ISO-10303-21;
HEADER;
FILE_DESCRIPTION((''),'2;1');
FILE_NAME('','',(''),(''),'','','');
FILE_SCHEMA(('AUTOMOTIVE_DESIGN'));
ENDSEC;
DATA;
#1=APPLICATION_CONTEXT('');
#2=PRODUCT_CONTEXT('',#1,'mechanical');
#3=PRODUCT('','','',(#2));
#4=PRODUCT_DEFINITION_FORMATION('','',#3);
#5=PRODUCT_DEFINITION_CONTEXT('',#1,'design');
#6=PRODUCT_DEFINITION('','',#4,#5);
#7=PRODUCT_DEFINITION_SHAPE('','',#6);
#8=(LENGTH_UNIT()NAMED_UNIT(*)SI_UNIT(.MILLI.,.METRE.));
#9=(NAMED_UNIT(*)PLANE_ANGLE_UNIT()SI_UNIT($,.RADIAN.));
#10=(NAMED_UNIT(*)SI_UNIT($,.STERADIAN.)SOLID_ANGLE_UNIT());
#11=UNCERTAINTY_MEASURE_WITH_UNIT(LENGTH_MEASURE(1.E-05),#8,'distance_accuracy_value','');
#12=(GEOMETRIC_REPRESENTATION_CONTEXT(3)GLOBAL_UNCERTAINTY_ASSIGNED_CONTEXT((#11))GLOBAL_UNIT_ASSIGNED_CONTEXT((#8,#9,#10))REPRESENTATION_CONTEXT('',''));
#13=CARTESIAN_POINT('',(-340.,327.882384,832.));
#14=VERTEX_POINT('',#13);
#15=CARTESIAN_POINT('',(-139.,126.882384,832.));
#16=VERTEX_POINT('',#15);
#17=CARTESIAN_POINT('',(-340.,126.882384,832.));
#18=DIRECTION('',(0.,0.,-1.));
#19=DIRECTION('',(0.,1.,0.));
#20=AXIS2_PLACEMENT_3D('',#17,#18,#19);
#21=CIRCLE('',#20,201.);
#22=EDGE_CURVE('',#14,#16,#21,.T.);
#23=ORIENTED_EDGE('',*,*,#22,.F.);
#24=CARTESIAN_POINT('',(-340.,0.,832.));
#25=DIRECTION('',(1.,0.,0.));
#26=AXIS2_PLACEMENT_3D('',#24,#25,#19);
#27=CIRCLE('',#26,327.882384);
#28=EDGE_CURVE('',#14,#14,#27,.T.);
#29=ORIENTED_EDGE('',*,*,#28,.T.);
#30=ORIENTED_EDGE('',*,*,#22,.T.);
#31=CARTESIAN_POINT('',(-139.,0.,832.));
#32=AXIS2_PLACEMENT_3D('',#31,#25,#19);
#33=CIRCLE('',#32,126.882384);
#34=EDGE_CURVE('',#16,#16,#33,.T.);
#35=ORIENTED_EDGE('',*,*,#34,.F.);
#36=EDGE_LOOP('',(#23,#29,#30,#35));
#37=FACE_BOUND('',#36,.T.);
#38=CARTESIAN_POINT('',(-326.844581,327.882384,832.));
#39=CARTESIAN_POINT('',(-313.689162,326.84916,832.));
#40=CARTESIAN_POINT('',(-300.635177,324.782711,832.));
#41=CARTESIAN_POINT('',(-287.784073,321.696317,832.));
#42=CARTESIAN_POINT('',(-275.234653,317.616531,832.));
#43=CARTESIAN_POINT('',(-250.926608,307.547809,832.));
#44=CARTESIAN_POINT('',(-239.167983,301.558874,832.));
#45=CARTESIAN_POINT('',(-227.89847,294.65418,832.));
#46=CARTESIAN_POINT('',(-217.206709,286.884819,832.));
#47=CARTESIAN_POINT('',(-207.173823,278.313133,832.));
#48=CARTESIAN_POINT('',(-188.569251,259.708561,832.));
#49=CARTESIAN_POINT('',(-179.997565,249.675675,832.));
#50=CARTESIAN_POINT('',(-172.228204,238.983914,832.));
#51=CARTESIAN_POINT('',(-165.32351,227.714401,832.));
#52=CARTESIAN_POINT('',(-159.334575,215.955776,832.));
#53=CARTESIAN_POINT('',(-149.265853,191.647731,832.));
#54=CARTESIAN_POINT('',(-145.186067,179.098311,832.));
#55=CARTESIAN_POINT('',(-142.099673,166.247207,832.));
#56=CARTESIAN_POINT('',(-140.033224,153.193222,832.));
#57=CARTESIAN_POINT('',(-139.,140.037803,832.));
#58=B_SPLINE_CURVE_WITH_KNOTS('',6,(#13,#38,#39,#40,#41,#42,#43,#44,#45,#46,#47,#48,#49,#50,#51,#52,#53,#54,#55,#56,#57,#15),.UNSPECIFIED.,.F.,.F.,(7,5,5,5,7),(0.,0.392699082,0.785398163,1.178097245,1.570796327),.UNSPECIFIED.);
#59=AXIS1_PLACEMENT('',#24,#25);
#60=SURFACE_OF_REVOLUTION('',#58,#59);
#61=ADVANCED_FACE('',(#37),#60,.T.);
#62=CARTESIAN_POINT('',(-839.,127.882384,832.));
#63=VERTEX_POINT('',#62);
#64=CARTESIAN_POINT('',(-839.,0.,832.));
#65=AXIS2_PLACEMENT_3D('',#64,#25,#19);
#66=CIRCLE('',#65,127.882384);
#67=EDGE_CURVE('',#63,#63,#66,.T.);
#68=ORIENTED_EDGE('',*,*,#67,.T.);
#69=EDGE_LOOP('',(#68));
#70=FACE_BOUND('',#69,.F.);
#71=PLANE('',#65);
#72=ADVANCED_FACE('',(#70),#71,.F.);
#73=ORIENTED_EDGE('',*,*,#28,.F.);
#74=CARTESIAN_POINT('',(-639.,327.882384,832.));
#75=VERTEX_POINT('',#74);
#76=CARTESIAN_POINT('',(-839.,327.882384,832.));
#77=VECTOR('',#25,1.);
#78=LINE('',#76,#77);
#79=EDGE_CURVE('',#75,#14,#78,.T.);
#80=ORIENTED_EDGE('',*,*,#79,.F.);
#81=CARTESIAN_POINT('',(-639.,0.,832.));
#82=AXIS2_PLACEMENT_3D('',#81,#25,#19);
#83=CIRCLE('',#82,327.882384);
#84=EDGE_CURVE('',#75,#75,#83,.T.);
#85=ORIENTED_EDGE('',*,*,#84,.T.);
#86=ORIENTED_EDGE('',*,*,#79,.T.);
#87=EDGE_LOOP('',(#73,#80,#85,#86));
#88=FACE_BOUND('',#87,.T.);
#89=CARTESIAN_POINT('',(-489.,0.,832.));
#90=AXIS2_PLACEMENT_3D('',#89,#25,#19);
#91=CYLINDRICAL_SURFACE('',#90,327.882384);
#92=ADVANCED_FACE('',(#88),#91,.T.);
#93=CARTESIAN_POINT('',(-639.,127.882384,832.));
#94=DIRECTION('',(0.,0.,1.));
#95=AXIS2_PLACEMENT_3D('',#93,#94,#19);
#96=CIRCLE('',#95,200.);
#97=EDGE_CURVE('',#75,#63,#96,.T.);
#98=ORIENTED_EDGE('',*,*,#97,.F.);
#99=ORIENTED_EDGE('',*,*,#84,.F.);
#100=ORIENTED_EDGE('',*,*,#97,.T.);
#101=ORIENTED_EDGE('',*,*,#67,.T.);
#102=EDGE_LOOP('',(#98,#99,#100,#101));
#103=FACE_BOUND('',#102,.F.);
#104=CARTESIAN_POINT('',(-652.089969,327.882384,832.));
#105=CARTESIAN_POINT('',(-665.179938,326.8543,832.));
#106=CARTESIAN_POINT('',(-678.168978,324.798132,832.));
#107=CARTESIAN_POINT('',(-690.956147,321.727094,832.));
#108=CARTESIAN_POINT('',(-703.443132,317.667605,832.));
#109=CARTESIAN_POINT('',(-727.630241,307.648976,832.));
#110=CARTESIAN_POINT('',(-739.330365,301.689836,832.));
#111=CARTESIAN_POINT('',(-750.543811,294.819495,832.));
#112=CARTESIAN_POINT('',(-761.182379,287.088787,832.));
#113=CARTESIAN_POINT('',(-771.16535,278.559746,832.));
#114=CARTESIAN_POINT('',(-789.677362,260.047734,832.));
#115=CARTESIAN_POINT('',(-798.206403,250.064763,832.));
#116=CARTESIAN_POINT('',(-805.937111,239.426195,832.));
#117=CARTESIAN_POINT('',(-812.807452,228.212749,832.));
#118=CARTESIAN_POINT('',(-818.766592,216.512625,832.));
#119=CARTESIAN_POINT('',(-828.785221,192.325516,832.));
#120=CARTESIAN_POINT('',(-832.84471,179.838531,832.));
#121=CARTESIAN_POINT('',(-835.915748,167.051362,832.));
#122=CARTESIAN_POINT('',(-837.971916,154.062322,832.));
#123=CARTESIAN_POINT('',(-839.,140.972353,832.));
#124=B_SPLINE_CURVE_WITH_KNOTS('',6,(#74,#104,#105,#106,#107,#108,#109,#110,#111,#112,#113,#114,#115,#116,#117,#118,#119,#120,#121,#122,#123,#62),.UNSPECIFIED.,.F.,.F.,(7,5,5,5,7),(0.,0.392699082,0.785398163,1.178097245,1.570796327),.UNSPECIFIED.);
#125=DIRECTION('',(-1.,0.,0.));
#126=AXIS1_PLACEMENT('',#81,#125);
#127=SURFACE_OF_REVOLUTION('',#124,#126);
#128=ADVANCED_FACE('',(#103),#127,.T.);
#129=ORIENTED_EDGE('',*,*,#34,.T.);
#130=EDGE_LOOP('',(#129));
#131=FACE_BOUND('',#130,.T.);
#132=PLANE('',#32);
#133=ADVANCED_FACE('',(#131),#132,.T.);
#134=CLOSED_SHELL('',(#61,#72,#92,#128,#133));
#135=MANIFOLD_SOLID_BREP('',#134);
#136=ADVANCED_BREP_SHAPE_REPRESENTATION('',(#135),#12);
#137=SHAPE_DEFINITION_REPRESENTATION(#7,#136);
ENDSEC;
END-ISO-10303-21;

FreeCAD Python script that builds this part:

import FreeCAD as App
import Part
import Sketcher

V = App.Vector
Q = App.Units.Quantity


def edges_at(feature, points):
    """Names of the edges that pass closest to the given points."""
    edges = feature.Shape.Edges
    near = lambda p: min(range(len(edges)), key=lambda i: edges[i].distToShape(Part.Vertex(*p))[0])
    return sorted({f"Edge{near(p) + 1}" for p in points})

doc = App.newDocument("Part")
body = doc.addObject("PartDesign::Body", "Body")

sketch1 = body.newObject("Sketcher::SketchObject", "Sketch")
sketch1.AttachmentSupport = (doc.getObject("YZ_Plane"), [""])
sketch1.MapMode = "FlatFace"
sketch1.addGeometry(Part.Circle(V(0, 0, 0), V(0, 0, 1), 328), False)
sketch1.addConstraint(Sketcher.Constraint("Coincident", 0, 3, -1, 1))
sketch1.addConstraint(Sketcher.Constraint("Diameter", 0, Q("655.764768 mm")))
pad1 = body.newObject("PartDesign::Pad", "Pad")
pad1.Profile = sketch1
pad1.Length = 700
pad1.Midplane = True
doc.recompute()

fillet = body.newObject("PartDesign::Fillet", "Fillet")
fillet.Base = (pad1, edges_at(pad1, [(-350, -327.882, 0)]))
fillet.Radius = 200
doc.recompute()

fillet2 = body.newObject("PartDesign::Fillet", "Fillet001")
fillet2.Base = (fillet, edges_at(fillet, [(350, -327.882, 0)]))
fillet2.Radius = 201
body2 = doc.addObject("PartDesign::Body", "Body001")
doc.recompute()

body.Placement = App.Placement(V(-489, 0, 832), App.Rotation(V(0, 0, 1), 0))
boolean = body2.newObject("PartDesign::Boolean", "Boolean")
boolean.Type = "Fuse"
boolean.addObjects([body])

doc.recompute()
